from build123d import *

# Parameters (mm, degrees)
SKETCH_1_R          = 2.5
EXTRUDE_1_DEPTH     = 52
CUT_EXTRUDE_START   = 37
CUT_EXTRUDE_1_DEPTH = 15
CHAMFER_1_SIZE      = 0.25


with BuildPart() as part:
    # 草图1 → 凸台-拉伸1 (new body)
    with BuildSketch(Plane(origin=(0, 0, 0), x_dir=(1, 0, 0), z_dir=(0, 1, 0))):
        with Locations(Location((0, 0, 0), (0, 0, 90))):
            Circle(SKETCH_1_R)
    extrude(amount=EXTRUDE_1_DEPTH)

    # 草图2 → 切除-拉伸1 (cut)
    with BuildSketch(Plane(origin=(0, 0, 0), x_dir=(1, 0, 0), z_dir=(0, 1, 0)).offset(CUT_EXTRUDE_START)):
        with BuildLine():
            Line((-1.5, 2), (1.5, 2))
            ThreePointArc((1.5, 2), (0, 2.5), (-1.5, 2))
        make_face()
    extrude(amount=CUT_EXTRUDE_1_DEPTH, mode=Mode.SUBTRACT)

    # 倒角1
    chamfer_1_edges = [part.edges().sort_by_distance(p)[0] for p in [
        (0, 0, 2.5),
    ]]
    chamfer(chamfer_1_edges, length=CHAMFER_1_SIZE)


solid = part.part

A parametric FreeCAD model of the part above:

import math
import FreeCAD as App
import Part
import Sketcher
Q = App.Units.Quantity


def edges_at(feature, points):
    """Names of the edges that pass closest to the given points."""
    edges = feature.Shape.Edges
    near = lambda p: min(range(len(edges)), key=lambda i: edges[i].distToShape(Part.Vertex(*p))[0])
    return sorted({f"Edge{near(p) + 1}" for p in points})

doc = App.newDocument("Part")
body = doc.addObject("PartDesign::Body", "Body")

sketch1 = body.newObject("Sketcher::SketchObject", "Sketch")
sketch1.AttachmentSupport = (doc.getObject("XZ_Plane"), [""])
sketch1.MapMode = "FlatFace"
sketch1.addGeometry(Part.Circle(App.Vector(0, 0, 0), App.Vector(0, 0, 1), 2.5), False)
sketch1.addConstraint([
    Sketcher.Constraint("Coincident", 0, 3, -1, 1),
    Sketcher.Constraint("Diameter", 0, Q("5 mm")),
])
pad1 = body.newObject("PartDesign::Pad", "Pad")
pad1.Profile = sketch1
pad1.Length = 52
pad1.Reversed = True

sketch2 = body.newObject("Sketcher::SketchObject", "Sketch001")
sketch2.AttachmentSupport = (doc.getObject("XZ_Plane"), [""])
sketch2.MapMode = "FlatFace"
sketch2.AttachmentOffset = App.Placement(App.Vector(0, 0, -37), App.Rotation())
sketch2.addGeometry([
    Part.LineSegment(App.Vector(-1.5, -2, 0), App.Vector(1.5, -2, 0)),
    Part.ArcOfCircle(Part.Circle(App.Vector(0, 0, 0), App.Vector(0, 0, 1), 2.5), math.radians(-127), math.radians(-53)),
], False)
sketch2.addConstraint([
    Sketcher.Constraint("Coincident", 0, 1, 1, 1),
    Sketcher.Constraint("Coincident", 1, 2, 0, 2),
    Sketcher.Constraint("Horizontal", 0),
    Sketcher.Constraint("Coincident", 1, 3, -1, 1),
    Sketcher.Constraint("Radius", 1, Q("2.5 mm")),
    Sketcher.Constraint("DistanceX", 0, 1, 0, 2, Q("3 mm")),
])
pocket1 = body.newObject("PartDesign::Pocket", "Pocket")
pocket1.Profile = sketch2
pocket1.Length = 15
doc.recompute()

chamfer = body.newObject("PartDesign::Chamfer", "Chamfer")
chamfer.Base = (pocket1, edges_at(pocket1, [(0, 0, 2.5)]))
chamfer.Size = 0.25

doc.recompute()
